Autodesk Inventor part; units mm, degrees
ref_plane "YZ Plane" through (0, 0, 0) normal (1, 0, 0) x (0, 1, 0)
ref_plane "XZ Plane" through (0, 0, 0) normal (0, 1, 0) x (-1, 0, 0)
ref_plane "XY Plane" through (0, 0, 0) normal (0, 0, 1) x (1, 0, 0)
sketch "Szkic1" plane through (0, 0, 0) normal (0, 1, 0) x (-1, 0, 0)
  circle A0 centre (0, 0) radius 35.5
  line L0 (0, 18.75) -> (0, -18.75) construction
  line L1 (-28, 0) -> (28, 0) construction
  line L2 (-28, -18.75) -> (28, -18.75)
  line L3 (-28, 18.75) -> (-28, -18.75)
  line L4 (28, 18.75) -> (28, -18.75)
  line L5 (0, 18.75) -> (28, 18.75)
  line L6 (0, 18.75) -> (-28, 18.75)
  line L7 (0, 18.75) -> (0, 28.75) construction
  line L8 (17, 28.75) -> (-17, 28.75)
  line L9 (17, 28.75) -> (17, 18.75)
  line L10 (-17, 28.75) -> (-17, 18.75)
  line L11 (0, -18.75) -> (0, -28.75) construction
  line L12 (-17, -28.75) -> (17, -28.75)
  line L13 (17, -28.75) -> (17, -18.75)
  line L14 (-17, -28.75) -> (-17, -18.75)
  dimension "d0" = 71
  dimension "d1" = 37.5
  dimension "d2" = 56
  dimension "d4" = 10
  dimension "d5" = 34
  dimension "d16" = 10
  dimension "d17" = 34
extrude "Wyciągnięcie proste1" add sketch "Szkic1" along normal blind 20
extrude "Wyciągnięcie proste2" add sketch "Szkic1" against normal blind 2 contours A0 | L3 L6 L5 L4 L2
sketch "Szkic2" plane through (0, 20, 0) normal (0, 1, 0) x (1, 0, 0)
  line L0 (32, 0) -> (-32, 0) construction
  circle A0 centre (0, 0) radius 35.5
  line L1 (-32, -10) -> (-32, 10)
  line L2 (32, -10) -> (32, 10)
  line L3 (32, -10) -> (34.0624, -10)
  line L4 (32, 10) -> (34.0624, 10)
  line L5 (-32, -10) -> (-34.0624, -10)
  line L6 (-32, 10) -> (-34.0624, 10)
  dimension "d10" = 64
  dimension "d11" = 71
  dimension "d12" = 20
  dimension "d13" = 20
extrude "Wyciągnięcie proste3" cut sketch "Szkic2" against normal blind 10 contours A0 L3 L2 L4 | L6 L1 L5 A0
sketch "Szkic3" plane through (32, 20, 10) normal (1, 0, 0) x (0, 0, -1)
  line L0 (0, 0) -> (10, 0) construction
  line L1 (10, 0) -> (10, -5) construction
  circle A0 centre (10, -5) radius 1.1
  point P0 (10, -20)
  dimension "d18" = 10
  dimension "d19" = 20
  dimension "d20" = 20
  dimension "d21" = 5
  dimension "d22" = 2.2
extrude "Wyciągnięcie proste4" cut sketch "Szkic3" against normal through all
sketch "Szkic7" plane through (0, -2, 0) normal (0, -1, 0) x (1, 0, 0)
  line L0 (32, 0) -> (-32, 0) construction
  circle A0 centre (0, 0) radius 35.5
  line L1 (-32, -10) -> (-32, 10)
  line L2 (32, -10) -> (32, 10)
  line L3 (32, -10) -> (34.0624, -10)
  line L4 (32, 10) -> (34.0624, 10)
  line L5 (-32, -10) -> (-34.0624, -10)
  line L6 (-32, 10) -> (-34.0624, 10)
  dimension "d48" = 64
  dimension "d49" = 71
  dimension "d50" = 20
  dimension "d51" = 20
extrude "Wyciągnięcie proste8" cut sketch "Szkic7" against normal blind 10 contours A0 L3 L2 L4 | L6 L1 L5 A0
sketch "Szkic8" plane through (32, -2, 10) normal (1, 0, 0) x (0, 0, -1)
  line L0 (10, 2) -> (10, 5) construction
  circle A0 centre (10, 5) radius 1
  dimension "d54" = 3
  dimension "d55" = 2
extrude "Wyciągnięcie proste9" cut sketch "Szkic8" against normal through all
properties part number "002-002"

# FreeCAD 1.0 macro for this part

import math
import FreeCAD as App
import Part
import Sketcher

doc = App.newDocument("Part")
body = doc.addObject("PartDesign::Body", "Body")

sketch1 = doc.addObject("Sketcher::SketchObject", "Sketch")
body.addObject(sketch1)
sketch1.AttachmentSupport = (doc.XZ_Plane, [""])
sketch1.MapMode = "FlatFace"
sketch1.addGeometry([
    Part.Circle(App.Vector(0, 0, 0), App.Vector(0, 0, 1), 35.5),
    Part.LineSegment(App.Vector(17, -18.75, 0), App.Vector(28, -18.75, 0)),
    Part.LineSegment(App.Vector(28, -18.75, 0), App.Vector(28, 18.75, 0)),
    Part.LineSegment(App.Vector(28, 18.75, 0), App.Vector(17, 18.75, 0)),
    Part.LineSegment(App.Vector(17, 18.75, 0), App.Vector(17, 28.75, 0)),
    Part.LineSegment(App.Vector(17, 28.75, 0), App.Vector(-17, 28.75, 0)),
    Part.LineSegment(App.Vector(-17, 28.75, 0), App.Vector(-17, 18.75, 0)),
    Part.LineSegment(App.Vector(-17, 18.75, 0), App.Vector(-28, 18.75, 0)),
    Part.LineSegment(App.Vector(-28, 18.75, 0), App.Vector(-28, -18.75, 0)),
    Part.LineSegment(App.Vector(-28, -18.75, 0), App.Vector(-17, -18.75, 0)),
    Part.LineSegment(App.Vector(-17, -18.75, 0), App.Vector(-17, -28.75, 0)),
    Part.LineSegment(App.Vector(-17, -28.75, 0), App.Vector(17, -28.75, 0)),
    Part.LineSegment(App.Vector(17, -28.75, 0), App.Vector(17, -18.75, 0)),
], False)
sketch1.addConstraint([
    Sketcher.Constraint("Coincident", 1, 2, 2, 1),
    Sketcher.Constraint("Coincident", 2, 2, 3, 1),
    Sketcher.Constraint("Coincident", 3, 2, 4, 1),
    Sketcher.Constraint("Coincident", 4, 2, 5, 1),
    Sketcher.Constraint("Coincident", 5, 2, 6, 1),
    Sketcher.Constraint("Coincident", 6, 2, 7, 1),
    Sketcher.Constraint("Coincident", 7, 2, 8, 1),
    Sketcher.Constraint("Coincident", 8, 2, 9, 1),
    Sketcher.Constraint("Coincident", 9, 2, 10, 1),
    Sketcher.Constraint("Coincident", 10, 2, 11, 1),
    Sketcher.Constraint("Coincident", 11, 2, 12, 1),
    Sketcher.Constraint("Coincident", 12, 2, 1, 1),
    Sketcher.Constraint("Horizontal", 1),
    Sketcher.Constraint("Vertical", 2),
    Sketcher.Constraint("Horizontal", 3),
    Sketcher.Constraint("Vertical", 4),
    Sketcher.Constraint("Horizontal", 5),
    Sketcher.Constraint("Vertical", 6),
    Sketcher.Constraint("Horizontal", 7),
    Sketcher.Constraint("Vertical", 8),
    Sketcher.Constraint("Horizontal", 9),
    Sketcher.Constraint("Vertical", 10),
    Sketcher.Constraint("Horizontal", 11),
    Sketcher.Constraint("Vertical", 12),
    Sketcher.Constraint("Coincident", 0, 3, -1, 1),
    Sketcher.Constraint("Symmetric", 1, 2, 7, 2, -1, 1),
    Sketcher.Constraint("Symmetric", 3, 2, 9, 2, -1, 1),
    Sketcher.Constraint("Symmetric", 5, 2, 11, 2, -1, 1),
    Sketcher.Constraint("Symmetric", 3, 2, 6, 2, -2),
    Sketcher.Constraint("Diameter", 0, 71.0),
    Sketcher.Constraint("DistanceX", 5, 2, 5, 1, 34.0),
    Sketcher.Constraint("DistanceY", 4, 1, 4, 2, 10.0),
    Sketcher.Constraint("DistanceY", 2, 1, 2, 2, 37.5),
    Sketcher.Constraint("DistanceX", 8, 2, 1, 2, 56.0),
])
pad1 = doc.addObject("PartDesign::Pad", "Pad")
body.addObject(pad1)
pad1.Profile = sketch1
pad1.Length = 20
pad1.Reversed = True

sketch2 = doc.addObject("Sketcher::SketchObject", "Sketch001")
body.addObject(sketch2)
sketch2.AttachmentSupport = (doc.XZ_Plane, [""])
sketch2.MapMode = "FlatFace"
sketch2.addGeometry([
    Part.Circle(App.Vector(0, 0, 0), App.Vector(0, 0, 1), 35.5),
    Part.LineSegment(App.Vector(17, -28.75, 0), App.Vector(17, -18.75, 0)),
    Part.LineSegment(App.Vector(17, -18.75, 0), App.Vector(-17, -18.75, 0)),
    Part.LineSegment(App.Vector(-17, -18.75, 0), App.Vector(-17, -28.75, 0)),
    Part.LineSegment(App.Vector(-17, -28.75, 0), App.Vector(17, -28.75, 0)),
    Part.LineSegment(App.Vector(-17, 28.75, 0), App.Vector(-17, 18.75, 0)),
    Part.LineSegment(App.Vector(-17, 18.75, 0), App.Vector(17, 18.75, 0)),
    Part.LineSegment(App.Vector(17, 18.75, 0), App.Vector(17, 28.75, 0)),
    Part.LineSegment(App.Vector(17, 28.75, 0), App.Vector(-17, 28.75, 0)),
], False)
sketch2.addConstraint([
    Sketcher.Constraint("Coincident", 1, 2, 2, 1),
    Sketcher.Constraint("Coincident", 2, 2, 3, 1),
    Sketcher.Constraint("Coincident", 3, 2, 4, 1),
    Sketcher.Constraint("Coincident", 4, 2, 1, 1),
    Sketcher.Constraint("Coincident", 5, 2, 6, 1),
    Sketcher.Constraint("Coincident", 6, 2, 7, 1),
    Sketcher.Constraint("Coincident", 7, 2, 8, 1),
    Sketcher.Constraint("Coincident", 8, 2, 5, 1),
    Sketcher.Constraint("Vertical", 1),
    Sketcher.Constraint("Horizontal", 2),
    Sketcher.Constraint("Vertical", 3),
    Sketcher.Constraint("Horizontal", 4),
    Sketcher.Constraint("Vertical", 5),
    Sketcher.Constraint("Horizontal", 6),
    Sketcher.Constraint("Vertical", 7),
    Sketcher.Constraint("Horizontal", 8),
    Sketcher.Constraint("Coincident", 0, 3, -1, 1),
    Sketcher.Constraint("Symmetric", 1, 2, 5, 2, -1, 1),
    Sketcher.Constraint("Symmetric", 3, 2, 7, 2, -1, 1),
    Sketcher.Constraint("Vertical", 3, 2, 5, 2),
    Sketcher.Constraint("Diameter", 0, 71.0),
    Sketcher.Constraint("DistanceX", 2, 2, 2, 1, 34.0),
    Sketcher.Constraint("DistanceY", 1, 1, 1, 2, 10.0),
    Sketcher.Constraint("DistanceY", 2, 2, 5, 2, 37.5),
])
pad2 = doc.addObject("PartDesign::Pad", "Pad001")
body.addObject(pad2)
pad2.Profile = sketch2
pad2.Length = 2

sketch3 = doc.addObject("Sketcher::SketchObject", "Sketch002")
body.addObject(sketch3)
sketch3.AttachmentSupport = (doc.XZ_Plane, [""])
sketch3.MapMode = "FlatFace"
sketch3.AttachmentOffset = App.Placement(App.Vector(0, 0, -20), App.Rotation())
sketch3.addGeometry([
    Part.ArcOfCircle(Part.Circle(App.Vector(0, 0, 0), App.Vector(0, 0, 1), 35.5), math.radians(-16.361123), math.radians(16.361123)),
    Part.LineSegment(App.Vector(34.0624, -10, 0), App.Vector(32, -10, 0)),
    Part.LineSegment(App.Vector(32, -10, 0), App.Vector(32, 10, 0)),
    Part.LineSegment(App.Vector(32, 10, 0), App.Vector(34.0624, 10, 0)),
    Part.LineSegment(App.Vector(-32, -10, 0), App.Vector(-34.0624, -10, 0)),
    Part.ArcOfCircle(Part.Circle(App.Vector(0, 0, 0), App.Vector(0, 0, 1), 35.5), math.radians(163.638877), math.radians(196.361123)),
    Part.LineSegment(App.Vector(-34.0624, 10, 0), App.Vector(-32, 10, 0)),
    Part.LineSegment(App.Vector(-32, 10, 0), App.Vector(-32, -10, 0)),
], False)
sketch3.addConstraint([
    Sketcher.Constraint("Coincident", 0, 1, 1, 1),
    Sketcher.Constraint("Coincident", 1, 2, 2, 1),
    Sketcher.Constraint("Coincident", 2, 2, 3, 1),
    Sketcher.Constraint("Coincident", 3, 2, 0, 2),
    Sketcher.Constraint("Coincident", 4, 2, 5, 2),
    Sketcher.Constraint("Coincident", 5, 1, 6, 1),
    Sketcher.Constraint("Coincident", 6, 2, 7, 1),
    Sketcher.Constraint("Coincident", 7, 2, 4, 1),
    Sketcher.Constraint("Horizontal", 1),
    Sketcher.Constraint("Vertical", 2),
    Sketcher.Constraint("Horizontal", 3),
    Sketcher.Constraint("Horizontal", 4),
    Sketcher.Constraint("Horizontal", 6),
    Sketcher.Constraint("Vertical", 7),
    Sketcher.Constraint("Coincident", 0, 3, -1, 1),
    Sketcher.Constraint("Coincident", 5, 3, -1, 1),
    Sketcher.Constraint("Equal", 0, 5),
    Sketcher.Constraint("Symmetric", 1, 2, 6, 2, -1, 1),
    Sketcher.Constraint("Horizontal", 1, 2, 4, 2),
    Sketcher.Constraint("Horizontal", 3, 2, 5, 1),
    Sketcher.Constraint("Radius", 0, 35.5),
    Sketcher.Constraint("DistanceY", 2, 1, 2, 2, 20.0),
    Sketcher.Constraint("DistanceX", 6, 2, 2, 2, 64.0),
])
pocket1 = doc.addObject("PartDesign::Pocket", "Pocket")
body.addObject(pocket1)
pocket1.Profile = sketch3
pocket1.Length = 10
pocket1.Reversed = True

sketch4 = doc.addObject("Sketcher::SketchObject", "Sketch003")
body.addObject(sketch4)
sketch4.AttachmentSupport = (doc.YZ_Plane, [""])
sketch4.MapMode = "FlatFace"
sketch4.AttachmentOffset = App.Placement(App.Vector(0, 0, 32), App.Rotation())
sketch4.addGeometry(Part.Circle(App.Vector(15, 0, 0), App.Vector(0, 0, 1), 1.1), False)
sketch4.addConstraint([
    Sketcher.Constraint("PointOnObject", 0, 3, -1),
    Sketcher.Constraint("Diameter", 0, 2.2),
    Sketcher.Constraint("DistanceX", -1, 1, 0, 3, 15.0),
])
pocket2 = doc.addObject("PartDesign::Pocket", "Pocket001")
body.addObject(pocket2)
pocket2.Profile = sketch4
pocket2.Type = "ThroughAll"

sketch5 = doc.addObject("Sketcher::SketchObject", "Sketch004")
body.addObject(sketch5)
sketch5.AttachmentSupport = (doc.XZ_Plane, [""])
sketch5.MapMode = "FlatFace"
sketch5.AttachmentOffset = App.Placement(App.Vector(0, 0, 2), App.Rotation())
sketch5.addGeometry([
    Part.ArcOfCircle(Part.Circle(App.Vector(0, 0, 0), App.Vector(0, 0, 1), 35.5), math.radians(-16.361123), math.radians(16.361123)),
    Part.LineSegment(App.Vector(34.0624, 10, 0), App.Vector(32, 10, 0)),
    Part.LineSegment(App.Vector(32, 10, 0), App.Vector(32, -10, 0)),
    Part.LineSegment(App.Vector(32, -10, 0), App.Vector(34.0624, -10, 0)),
    Part.LineSegment(App.Vector(-32, 10, 0), App.Vector(-34.0624, 10, 0)),
    Part.ArcOfCircle(Part.Circle(App.Vector(0, 0, 0), App.Vector(0, 0, 1), 35.5), math.radians(163.638877), math.radians(196.361123)),
    Part.LineSegment(App.Vector(-34.0624, -10, 0), App.Vector(-32, -10, 0)),
    Part.LineSegment(App.Vector(-32, -10, 0), App.Vector(-32, 10, 0)),
], False)
sketch5.addConstraint([
    Sketcher.Constraint("Coincident", 0, 2, 1, 1),
    Sketcher.Constraint("Coincident", 1, 2, 2, 1),
    Sketcher.Constraint("Coincident", 2, 2, 3, 1),
    Sketcher.Constraint("Coincident", 3, 2, 0, 1),
    Sketcher.Constraint("Coincident", 4, 2, 5, 1),
    Sketcher.Constraint("Coincident", 5, 2, 6, 1),
    Sketcher.Constraint("Coincident", 6, 2, 7, 1),
    Sketcher.Constraint("Coincident", 7, 2, 4, 1),
    Sketcher.Constraint("Horizontal", 1),
    Sketcher.Constraint("Vertical", 2),
    Sketcher.Constraint("Horizontal", 3),
    Sketcher.Constraint("Horizontal", 4),
    Sketcher.Constraint("Horizontal", 6),
    Sketcher.Constraint("Vertical", 7),
    Sketcher.Constraint("Coincident", 0, 3, -1, 1),
    Sketcher.Constraint("Coincident", 5, 3, -1, 1),
    Sketcher.Constraint("Equal", 0, 5),
    Sketcher.Constraint("Symmetric", 1, 2, 6, 2, -1, 1),
    Sketcher.Constraint("Horizontal", 1, 2, 4, 2),
    Sketcher.Constraint("Horizontal", 3, 2, 5, 2),
    Sketcher.Constraint("Radius", 0, 35.5),
    Sketcher.Constraint("DistanceY", 2, 2, 2, 1, 20.0),
    Sketcher.Constraint("DistanceX", 6, 2, 2, 2, 64.0),
])
pocket3 = doc.addObject("PartDesign::Pocket", "Pocket002")
body.addObject(pocket3)
pocket3.Profile = sketch5
pocket3.Length = 10

sketch6 = doc.addObject("Sketcher::SketchObject", "Sketch005")
body.addObject(sketch6)
sketch6.AttachmentSupport = (doc.YZ_Plane, [""])
sketch6.MapMode = "FlatFace"
sketch6.AttachmentOffset = App.Placement(App.Vector(0, 0, 32), App.Rotation())
sketch6.addGeometry(Part.Circle(App.Vector(3, 0, 0), App.Vector(0, 0, 1), 1), False)
sketch6.addConstraint([
    Sketcher.Constraint("PointOnObject", 0, 3, -1),
    Sketcher.Constraint("Diameter", 0, 2.0),
    Sketcher.Constraint("DistanceX", -1, 1, 0, 3, 3.0),
])
pocket4 = doc.addObject("PartDesign::Pocket", "Pocket003")
body.addObject(pocket4)
pocket4.Profile = sketch6
pocket4.Type = "ThroughAll"

doc.recompute()
